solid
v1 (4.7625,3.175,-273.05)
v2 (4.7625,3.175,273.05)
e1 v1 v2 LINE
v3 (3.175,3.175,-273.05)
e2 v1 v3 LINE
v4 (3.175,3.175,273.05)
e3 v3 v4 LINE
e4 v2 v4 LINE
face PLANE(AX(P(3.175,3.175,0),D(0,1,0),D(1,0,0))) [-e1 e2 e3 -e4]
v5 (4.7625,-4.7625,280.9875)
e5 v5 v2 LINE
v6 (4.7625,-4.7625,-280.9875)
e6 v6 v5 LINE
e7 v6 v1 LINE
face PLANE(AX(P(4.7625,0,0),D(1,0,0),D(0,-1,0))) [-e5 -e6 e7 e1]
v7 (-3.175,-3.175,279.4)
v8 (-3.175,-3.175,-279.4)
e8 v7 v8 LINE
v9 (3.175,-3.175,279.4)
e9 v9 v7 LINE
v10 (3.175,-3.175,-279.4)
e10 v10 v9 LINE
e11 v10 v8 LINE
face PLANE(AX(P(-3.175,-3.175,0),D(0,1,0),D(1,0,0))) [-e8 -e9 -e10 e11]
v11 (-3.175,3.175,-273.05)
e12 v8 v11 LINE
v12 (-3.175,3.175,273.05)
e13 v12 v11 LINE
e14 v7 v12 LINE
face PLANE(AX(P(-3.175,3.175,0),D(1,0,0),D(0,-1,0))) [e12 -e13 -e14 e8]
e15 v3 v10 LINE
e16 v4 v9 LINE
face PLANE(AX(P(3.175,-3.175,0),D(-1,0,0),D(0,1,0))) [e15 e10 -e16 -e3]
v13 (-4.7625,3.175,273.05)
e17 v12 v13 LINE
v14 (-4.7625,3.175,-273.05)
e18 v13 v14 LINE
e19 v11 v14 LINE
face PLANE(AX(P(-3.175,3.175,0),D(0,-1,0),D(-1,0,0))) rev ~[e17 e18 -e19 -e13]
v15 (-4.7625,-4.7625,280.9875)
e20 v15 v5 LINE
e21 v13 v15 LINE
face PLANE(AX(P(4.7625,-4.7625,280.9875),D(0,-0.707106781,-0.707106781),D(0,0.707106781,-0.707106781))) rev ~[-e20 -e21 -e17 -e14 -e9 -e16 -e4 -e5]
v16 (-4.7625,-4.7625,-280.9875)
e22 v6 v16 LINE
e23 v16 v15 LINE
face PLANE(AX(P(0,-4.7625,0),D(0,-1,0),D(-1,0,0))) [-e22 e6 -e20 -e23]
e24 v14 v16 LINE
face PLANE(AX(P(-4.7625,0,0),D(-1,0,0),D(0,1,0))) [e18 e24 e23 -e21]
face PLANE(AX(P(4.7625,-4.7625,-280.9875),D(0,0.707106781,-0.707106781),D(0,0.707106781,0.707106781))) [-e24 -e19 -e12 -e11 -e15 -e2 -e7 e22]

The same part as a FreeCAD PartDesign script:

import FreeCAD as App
import Part
import Sketcher

V = App.Vector
Q = App.Units.Quantity


def add_polygon(sketch, points):
    """Adds a closed chain of lines whose ends are joined by coincident constraints."""
    first, n = sketch.GeometryCount, len(points)
    for a, b in zip(points, points[1:] + points[:1]):
        sketch.addGeometry(Part.LineSegment(App.Vector(*a, 0), App.Vector(*b, 0)), False)
    for i in range(n):
        sketch.addConstraint(Sketcher.Constraint("Coincident", first + i, 2, first + (i + 1) % n, 1))

doc = App.newDocument("Part")
body = doc.addObject("PartDesign::Body", "Body")

sketch1 = doc.addObject("Sketcher::SketchObject", "Sketch")
body.addObject(sketch1)
sketch1.AttachmentSupport = (doc.XY_Plane, [""])
sketch1.MapMode = "FlatFace"
add_polygon(sketch1, [(-4.8, 3.2), (-4.8, -4.8), (4.8, -4.8), (4.8, 3.2), (3.2, 3.2), (3.2, -3.2), (-3.2, -3.2), (-3.2, 3.2)])
sketch1.addConstraint(Sketcher.Constraint("Vertical", 0))
sketch1.addConstraint(Sketcher.Constraint("Horizontal", 1))
sketch1.addConstraint(Sketcher.Constraint("Vertical", 2))
sketch1.addConstraint(Sketcher.Constraint("Horizontal", 3))
sketch1.addConstraint(Sketcher.Constraint("Vertical", 4))
sketch1.addConstraint(Sketcher.Constraint("Horizontal", 5))
sketch1.addConstraint(Sketcher.Constraint("Vertical", 6))
sketch1.addConstraint(Sketcher.Constraint("Horizontal", 7))
sketch1.addConstraint(Sketcher.Constraint("Symmetric", 3, 2, 5, 2, -1, 1))
sketch1.addConstraint(Sketcher.Constraint("Symmetric", 2, 2, 7, 2, -2))
sketch1.addConstraint(Sketcher.Constraint("Equal", 5, 4))
sketch1.addConstraint(Sketcher.Constraint("DistanceX", 5, 2, 5, 1, Q("0.25 in")))
sketch1.addConstraint(Sketcher.Constraint("DistanceX", 3, 2, 3, 1, Q("0.0625 in")))
sketch1.addConstraint(Sketcher.Constraint("DistanceY", 1, 2, 4, 2, Q("0.0625 in")))
pad1 = doc.addObject("PartDesign::Pad", "Pad")
body.addObject(pad1)
pad1.Profile = sketch1
pad1.Length = Q("22.125 in")
pad1.Midplane = True

sketch2 = doc.addObject("Sketcher::SketchObject", "Sketch001")
body.addObject(sketch2)
sketch2.AttachmentSupport = (doc.YZ_Plane, [""])
sketch2.MapMode = "FlatFace"
sketch2.AttachmentOffset = App.Placement(V(0, 0, 0.1875 * 25.4), App.Rotation())
add_polygon(sketch2, [(3, 273), (3, 281), (-5, 281)])
add_polygon(sketch2, [(3, -273), (-5, -281), (3, -281)])
sketch2.addConstraint(Sketcher.Constraint("Vertical", 0))
sketch2.addConstraint(Sketcher.Constraint("Horizontal", 1))
sketch2.addConstraint(Sketcher.Constraint("Horizontal", 4))
sketch2.addConstraint(Sketcher.Constraint("Vertical", 5))
sketch2.addConstraint(Sketcher.Constraint("Symmetric", 1, 2, 3, 2, -1))
sketch2.addConstraint(Sketcher.Constraint("Symmetric", 2, 2, 5, 2, -1))
sketch2.addConstraint(Sketcher.Constraint("Perpendicular", 2, 3))
sketch2.addConstraint(Sketcher.Constraint("DistanceY", 5, 2, 2, 2, Q("21.5 in")))
sketch2.addConstraint(Sketcher.Constraint("DistanceX", 1, 2, 1, 1, Q("0.3125 in")))
sketch2.addConstraint(Sketcher.Constraint("DistanceX", -1, 1, 0, 2, Q("0.125 in")))
pocket1 = doc.addObject("PartDesign::Pocket", "Pocket")
body.addObject(pocket1)
pocket1.Profile = sketch2
pocket1.Type = "ThroughAll"

doc.recompute()
